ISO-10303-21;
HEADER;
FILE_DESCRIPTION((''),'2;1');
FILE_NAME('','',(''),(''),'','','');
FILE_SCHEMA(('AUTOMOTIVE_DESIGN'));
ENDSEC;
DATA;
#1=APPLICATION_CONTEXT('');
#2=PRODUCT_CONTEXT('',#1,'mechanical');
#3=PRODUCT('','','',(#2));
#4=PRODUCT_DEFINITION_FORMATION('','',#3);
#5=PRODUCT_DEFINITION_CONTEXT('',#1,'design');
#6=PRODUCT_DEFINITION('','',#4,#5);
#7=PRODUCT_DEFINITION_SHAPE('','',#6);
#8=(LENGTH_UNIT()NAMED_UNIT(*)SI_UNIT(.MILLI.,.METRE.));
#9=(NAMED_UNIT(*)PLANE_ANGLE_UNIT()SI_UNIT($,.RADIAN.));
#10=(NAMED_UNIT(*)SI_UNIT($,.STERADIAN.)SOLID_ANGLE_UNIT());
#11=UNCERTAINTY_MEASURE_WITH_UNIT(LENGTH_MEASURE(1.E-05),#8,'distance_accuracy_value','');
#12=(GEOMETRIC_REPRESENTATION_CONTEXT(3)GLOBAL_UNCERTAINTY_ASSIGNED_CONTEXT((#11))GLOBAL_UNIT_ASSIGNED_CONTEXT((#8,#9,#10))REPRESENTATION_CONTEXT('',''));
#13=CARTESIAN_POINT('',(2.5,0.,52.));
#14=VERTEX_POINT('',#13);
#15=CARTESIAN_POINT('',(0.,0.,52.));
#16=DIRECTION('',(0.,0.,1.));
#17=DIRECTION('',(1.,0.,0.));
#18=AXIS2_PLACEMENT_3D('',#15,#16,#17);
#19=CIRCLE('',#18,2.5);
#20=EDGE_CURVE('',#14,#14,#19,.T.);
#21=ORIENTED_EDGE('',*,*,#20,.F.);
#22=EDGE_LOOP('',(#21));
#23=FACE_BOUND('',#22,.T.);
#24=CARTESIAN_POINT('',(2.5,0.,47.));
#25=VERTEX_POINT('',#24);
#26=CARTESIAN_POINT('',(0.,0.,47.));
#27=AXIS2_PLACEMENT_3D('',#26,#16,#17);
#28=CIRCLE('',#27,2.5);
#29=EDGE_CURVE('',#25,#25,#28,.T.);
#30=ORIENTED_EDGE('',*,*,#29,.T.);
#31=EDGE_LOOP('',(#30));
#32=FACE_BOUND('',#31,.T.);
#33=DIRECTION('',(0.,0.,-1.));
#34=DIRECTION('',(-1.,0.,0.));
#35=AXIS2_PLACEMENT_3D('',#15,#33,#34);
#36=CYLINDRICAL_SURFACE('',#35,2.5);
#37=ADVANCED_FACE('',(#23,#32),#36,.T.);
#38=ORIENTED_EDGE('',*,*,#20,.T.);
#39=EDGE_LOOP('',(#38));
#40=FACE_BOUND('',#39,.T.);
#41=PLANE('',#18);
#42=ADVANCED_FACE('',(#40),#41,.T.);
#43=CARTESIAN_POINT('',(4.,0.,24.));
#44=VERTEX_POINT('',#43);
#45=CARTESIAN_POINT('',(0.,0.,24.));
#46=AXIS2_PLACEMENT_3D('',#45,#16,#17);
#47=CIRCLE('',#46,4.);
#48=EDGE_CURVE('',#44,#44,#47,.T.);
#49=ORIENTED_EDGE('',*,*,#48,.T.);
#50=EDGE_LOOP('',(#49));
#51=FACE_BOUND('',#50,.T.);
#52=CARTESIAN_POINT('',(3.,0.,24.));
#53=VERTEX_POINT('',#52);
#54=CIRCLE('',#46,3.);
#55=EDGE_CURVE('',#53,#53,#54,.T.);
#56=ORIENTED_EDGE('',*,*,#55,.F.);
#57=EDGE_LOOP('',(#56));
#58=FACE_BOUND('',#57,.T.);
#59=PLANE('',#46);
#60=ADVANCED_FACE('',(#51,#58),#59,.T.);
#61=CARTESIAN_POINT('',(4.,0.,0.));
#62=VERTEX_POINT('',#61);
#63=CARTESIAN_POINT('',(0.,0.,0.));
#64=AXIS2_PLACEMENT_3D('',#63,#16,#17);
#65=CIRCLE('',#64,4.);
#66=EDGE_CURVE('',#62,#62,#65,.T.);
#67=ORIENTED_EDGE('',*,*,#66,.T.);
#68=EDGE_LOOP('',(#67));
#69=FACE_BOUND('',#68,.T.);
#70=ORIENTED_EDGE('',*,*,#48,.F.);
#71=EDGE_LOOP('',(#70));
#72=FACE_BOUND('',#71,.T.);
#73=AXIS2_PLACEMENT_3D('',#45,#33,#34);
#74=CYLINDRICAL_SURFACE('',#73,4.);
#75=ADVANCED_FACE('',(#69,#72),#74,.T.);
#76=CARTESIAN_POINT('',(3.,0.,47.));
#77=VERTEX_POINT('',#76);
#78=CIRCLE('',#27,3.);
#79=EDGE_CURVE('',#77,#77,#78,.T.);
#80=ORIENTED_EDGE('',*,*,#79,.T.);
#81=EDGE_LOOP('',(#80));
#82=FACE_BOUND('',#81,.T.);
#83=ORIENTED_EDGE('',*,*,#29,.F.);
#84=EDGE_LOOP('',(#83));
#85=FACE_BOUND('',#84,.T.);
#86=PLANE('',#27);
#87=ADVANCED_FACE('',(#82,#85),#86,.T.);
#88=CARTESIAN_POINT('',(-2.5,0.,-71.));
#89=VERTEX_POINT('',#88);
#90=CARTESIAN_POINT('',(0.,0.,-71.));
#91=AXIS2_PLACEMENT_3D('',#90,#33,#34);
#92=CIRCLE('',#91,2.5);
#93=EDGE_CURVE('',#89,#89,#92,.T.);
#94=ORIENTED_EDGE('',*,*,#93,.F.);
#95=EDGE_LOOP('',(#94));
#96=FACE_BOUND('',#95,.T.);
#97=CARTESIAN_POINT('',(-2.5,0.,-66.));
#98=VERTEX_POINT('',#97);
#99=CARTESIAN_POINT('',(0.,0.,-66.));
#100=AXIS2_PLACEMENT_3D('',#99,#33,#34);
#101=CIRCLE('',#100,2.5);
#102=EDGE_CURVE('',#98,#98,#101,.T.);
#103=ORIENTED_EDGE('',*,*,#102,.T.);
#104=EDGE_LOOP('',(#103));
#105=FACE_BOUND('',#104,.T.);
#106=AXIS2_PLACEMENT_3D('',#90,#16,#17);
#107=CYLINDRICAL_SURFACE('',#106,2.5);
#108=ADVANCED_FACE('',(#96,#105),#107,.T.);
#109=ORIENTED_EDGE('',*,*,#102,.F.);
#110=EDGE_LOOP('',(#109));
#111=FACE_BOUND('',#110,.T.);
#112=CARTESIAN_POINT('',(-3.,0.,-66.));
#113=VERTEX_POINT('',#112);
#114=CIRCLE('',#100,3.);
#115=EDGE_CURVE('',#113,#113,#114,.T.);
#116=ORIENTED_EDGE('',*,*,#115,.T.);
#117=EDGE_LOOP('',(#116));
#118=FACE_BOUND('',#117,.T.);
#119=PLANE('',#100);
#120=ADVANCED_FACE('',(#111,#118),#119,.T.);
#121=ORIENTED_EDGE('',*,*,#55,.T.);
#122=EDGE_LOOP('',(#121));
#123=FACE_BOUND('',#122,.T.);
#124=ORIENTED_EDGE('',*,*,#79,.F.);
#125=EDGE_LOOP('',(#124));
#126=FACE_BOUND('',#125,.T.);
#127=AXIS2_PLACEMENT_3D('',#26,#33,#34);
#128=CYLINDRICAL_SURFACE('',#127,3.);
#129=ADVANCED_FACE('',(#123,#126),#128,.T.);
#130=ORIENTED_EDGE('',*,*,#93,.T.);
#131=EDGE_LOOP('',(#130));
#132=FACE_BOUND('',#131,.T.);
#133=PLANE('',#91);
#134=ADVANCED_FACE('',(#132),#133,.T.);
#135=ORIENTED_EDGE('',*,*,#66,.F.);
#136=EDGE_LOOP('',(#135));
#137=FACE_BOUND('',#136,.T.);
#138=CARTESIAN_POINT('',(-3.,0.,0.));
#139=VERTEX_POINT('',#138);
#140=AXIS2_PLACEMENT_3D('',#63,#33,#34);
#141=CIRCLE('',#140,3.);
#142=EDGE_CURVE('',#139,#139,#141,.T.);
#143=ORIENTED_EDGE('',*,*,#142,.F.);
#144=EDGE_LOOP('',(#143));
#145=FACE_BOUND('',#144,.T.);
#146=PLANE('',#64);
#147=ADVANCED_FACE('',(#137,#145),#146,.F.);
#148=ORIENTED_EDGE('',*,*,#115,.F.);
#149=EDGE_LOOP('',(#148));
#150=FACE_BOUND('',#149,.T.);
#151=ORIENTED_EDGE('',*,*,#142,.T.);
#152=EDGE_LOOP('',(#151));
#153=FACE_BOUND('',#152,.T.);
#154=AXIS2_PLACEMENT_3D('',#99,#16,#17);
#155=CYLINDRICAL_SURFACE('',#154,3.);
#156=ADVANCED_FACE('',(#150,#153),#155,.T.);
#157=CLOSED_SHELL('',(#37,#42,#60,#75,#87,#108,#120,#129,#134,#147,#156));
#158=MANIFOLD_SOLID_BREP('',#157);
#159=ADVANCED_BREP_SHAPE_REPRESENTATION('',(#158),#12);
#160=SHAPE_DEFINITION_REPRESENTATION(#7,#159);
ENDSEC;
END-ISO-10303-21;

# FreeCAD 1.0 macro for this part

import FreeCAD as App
import Part
import Sketcher
from FreeCAD import Vector
Q = App.Units.Quantity

doc = App.newDocument("Part")
body = doc.addObject("PartDesign::Body", "Body")

# Sketch on XY plane
sketch1 = doc.addObject("Sketcher::SketchObject", "Sketch")
body.addObject(sketch1)
sketch1.AttachmentSupport = (doc.XY_Plane, [""])
sketch1.MapMode = "FlatFace"
sketch1.addGeometry(Part.Circle(Vector(0, 0, 0), Vector(0, 0, 1), 4), False)
sketch1.addConstraint([
    Sketcher.Constraint("Coincident", 0, 3, -1, 1),
    Sketcher.Constraint("Diameter", 0, Q("8 mm")),
])
pad1 = doc.addObject("PartDesign::Pad", "Pad")
body.addObject(pad1)
pad1.Profile = sketch1
pad1.Length = 24

# Sketch on XY plane
sketch2 = doc.addObject("Sketcher::SketchObject", "Sketch001")
body.addObject(sketch2)
sketch2.AttachmentSupport = (doc.XY_Plane, [""])
sketch2.MapMode = "FlatFace"
sketch2.AttachmentOffset = App.Placement(Vector(0, 0, 24), App.Rotation())
sketch2.addGeometry(Part.Circle(Vector(0, 0, 0), Vector(0, 0, 1), 3), False)
sketch2.addConstraint([
    Sketcher.Constraint("Coincident", 0, 3, -1, 1),
    Sketcher.Constraint("Diameter", 0, Q("6 mm")),
])
pad2 = doc.addObject("PartDesign::Pad", "Pad001")
body.addObject(pad2)
pad2.Profile = sketch2
pad2.Length = 23

# Sketch on XY plane
sketch3 = doc.addObject("Sketcher::SketchObject", "Sketch002")
body.addObject(sketch3)
sketch3.AttachmentSupport = (doc.XY_Plane, [""])
sketch3.MapMode = "FlatFace"
sketch3.AttachmentOffset = App.Placement(Vector(0, 0, -66), App.Rotation())
sketch3.addGeometry(Part.Circle(Vector(0, 0, 0), Vector(0, 0, 1), 3), False)
sketch3.addConstraint([
    Sketcher.Constraint("Coincident", 0, 3, -1, 1),
    Sketcher.Constraint("Diameter", 0, Q("6 mm")),
])
pad3 = doc.addObject("PartDesign::Pad", "Pad002")
body.addObject(pad3)
pad3.Profile = sketch3
pad3.Length = 66

# Sketch on XY plane
sketch4 = doc.addObject("Sketcher::SketchObject", "Sketch003")
body.addObject(sketch4)
sketch4.AttachmentSupport = (doc.XY_Plane, [""])
sketch4.MapMode = "FlatFace"
sketch4.AttachmentOffset = App.Placement(Vector(0, 0, -66), App.Rotation())
sketch4.addGeometry(Part.Circle(Vector(0, 0, 0), Vector(0, 0, 1), 2.5), False)
sketch4.addConstraint([
    Sketcher.Constraint("Coincident", 0, 3, -1, 1),
    Sketcher.Constraint("Diameter", 0, Q("5 mm")),
])
pad4 = doc.addObject("PartDesign::Pad", "Pad003")
body.addObject(pad4)
pad4.Profile = sketch4
pad4.Length = 5
pad4.Reversed = True

# Sketch on XY plane
sketch5 = doc.addObject("Sketcher::SketchObject", "Sketch004")
body.addObject(sketch5)
sketch5.AttachmentSupport = (doc.XY_Plane, [""])
sketch5.MapMode = "FlatFace"
sketch5.AttachmentOffset = App.Placement(Vector(0, 0, 52), App.Rotation())
sketch5.addGeometry(Part.Circle(Vector(0, 0, 0), Vector(0, 0, 1), 2.5), False)
sketch5.addConstraint([
    Sketcher.Constraint("Coincident", 0, 3, -1, 1),
    Sketcher.Constraint("Diameter", 0, Q("5 mm")),
])
pad5 = doc.addObject("PartDesign::Pad", "Pad004")
body.addObject(pad5)
pad5.Profile = sketch5
pad5.Length = 5
pad5.Reversed = True

doc.recompute()
